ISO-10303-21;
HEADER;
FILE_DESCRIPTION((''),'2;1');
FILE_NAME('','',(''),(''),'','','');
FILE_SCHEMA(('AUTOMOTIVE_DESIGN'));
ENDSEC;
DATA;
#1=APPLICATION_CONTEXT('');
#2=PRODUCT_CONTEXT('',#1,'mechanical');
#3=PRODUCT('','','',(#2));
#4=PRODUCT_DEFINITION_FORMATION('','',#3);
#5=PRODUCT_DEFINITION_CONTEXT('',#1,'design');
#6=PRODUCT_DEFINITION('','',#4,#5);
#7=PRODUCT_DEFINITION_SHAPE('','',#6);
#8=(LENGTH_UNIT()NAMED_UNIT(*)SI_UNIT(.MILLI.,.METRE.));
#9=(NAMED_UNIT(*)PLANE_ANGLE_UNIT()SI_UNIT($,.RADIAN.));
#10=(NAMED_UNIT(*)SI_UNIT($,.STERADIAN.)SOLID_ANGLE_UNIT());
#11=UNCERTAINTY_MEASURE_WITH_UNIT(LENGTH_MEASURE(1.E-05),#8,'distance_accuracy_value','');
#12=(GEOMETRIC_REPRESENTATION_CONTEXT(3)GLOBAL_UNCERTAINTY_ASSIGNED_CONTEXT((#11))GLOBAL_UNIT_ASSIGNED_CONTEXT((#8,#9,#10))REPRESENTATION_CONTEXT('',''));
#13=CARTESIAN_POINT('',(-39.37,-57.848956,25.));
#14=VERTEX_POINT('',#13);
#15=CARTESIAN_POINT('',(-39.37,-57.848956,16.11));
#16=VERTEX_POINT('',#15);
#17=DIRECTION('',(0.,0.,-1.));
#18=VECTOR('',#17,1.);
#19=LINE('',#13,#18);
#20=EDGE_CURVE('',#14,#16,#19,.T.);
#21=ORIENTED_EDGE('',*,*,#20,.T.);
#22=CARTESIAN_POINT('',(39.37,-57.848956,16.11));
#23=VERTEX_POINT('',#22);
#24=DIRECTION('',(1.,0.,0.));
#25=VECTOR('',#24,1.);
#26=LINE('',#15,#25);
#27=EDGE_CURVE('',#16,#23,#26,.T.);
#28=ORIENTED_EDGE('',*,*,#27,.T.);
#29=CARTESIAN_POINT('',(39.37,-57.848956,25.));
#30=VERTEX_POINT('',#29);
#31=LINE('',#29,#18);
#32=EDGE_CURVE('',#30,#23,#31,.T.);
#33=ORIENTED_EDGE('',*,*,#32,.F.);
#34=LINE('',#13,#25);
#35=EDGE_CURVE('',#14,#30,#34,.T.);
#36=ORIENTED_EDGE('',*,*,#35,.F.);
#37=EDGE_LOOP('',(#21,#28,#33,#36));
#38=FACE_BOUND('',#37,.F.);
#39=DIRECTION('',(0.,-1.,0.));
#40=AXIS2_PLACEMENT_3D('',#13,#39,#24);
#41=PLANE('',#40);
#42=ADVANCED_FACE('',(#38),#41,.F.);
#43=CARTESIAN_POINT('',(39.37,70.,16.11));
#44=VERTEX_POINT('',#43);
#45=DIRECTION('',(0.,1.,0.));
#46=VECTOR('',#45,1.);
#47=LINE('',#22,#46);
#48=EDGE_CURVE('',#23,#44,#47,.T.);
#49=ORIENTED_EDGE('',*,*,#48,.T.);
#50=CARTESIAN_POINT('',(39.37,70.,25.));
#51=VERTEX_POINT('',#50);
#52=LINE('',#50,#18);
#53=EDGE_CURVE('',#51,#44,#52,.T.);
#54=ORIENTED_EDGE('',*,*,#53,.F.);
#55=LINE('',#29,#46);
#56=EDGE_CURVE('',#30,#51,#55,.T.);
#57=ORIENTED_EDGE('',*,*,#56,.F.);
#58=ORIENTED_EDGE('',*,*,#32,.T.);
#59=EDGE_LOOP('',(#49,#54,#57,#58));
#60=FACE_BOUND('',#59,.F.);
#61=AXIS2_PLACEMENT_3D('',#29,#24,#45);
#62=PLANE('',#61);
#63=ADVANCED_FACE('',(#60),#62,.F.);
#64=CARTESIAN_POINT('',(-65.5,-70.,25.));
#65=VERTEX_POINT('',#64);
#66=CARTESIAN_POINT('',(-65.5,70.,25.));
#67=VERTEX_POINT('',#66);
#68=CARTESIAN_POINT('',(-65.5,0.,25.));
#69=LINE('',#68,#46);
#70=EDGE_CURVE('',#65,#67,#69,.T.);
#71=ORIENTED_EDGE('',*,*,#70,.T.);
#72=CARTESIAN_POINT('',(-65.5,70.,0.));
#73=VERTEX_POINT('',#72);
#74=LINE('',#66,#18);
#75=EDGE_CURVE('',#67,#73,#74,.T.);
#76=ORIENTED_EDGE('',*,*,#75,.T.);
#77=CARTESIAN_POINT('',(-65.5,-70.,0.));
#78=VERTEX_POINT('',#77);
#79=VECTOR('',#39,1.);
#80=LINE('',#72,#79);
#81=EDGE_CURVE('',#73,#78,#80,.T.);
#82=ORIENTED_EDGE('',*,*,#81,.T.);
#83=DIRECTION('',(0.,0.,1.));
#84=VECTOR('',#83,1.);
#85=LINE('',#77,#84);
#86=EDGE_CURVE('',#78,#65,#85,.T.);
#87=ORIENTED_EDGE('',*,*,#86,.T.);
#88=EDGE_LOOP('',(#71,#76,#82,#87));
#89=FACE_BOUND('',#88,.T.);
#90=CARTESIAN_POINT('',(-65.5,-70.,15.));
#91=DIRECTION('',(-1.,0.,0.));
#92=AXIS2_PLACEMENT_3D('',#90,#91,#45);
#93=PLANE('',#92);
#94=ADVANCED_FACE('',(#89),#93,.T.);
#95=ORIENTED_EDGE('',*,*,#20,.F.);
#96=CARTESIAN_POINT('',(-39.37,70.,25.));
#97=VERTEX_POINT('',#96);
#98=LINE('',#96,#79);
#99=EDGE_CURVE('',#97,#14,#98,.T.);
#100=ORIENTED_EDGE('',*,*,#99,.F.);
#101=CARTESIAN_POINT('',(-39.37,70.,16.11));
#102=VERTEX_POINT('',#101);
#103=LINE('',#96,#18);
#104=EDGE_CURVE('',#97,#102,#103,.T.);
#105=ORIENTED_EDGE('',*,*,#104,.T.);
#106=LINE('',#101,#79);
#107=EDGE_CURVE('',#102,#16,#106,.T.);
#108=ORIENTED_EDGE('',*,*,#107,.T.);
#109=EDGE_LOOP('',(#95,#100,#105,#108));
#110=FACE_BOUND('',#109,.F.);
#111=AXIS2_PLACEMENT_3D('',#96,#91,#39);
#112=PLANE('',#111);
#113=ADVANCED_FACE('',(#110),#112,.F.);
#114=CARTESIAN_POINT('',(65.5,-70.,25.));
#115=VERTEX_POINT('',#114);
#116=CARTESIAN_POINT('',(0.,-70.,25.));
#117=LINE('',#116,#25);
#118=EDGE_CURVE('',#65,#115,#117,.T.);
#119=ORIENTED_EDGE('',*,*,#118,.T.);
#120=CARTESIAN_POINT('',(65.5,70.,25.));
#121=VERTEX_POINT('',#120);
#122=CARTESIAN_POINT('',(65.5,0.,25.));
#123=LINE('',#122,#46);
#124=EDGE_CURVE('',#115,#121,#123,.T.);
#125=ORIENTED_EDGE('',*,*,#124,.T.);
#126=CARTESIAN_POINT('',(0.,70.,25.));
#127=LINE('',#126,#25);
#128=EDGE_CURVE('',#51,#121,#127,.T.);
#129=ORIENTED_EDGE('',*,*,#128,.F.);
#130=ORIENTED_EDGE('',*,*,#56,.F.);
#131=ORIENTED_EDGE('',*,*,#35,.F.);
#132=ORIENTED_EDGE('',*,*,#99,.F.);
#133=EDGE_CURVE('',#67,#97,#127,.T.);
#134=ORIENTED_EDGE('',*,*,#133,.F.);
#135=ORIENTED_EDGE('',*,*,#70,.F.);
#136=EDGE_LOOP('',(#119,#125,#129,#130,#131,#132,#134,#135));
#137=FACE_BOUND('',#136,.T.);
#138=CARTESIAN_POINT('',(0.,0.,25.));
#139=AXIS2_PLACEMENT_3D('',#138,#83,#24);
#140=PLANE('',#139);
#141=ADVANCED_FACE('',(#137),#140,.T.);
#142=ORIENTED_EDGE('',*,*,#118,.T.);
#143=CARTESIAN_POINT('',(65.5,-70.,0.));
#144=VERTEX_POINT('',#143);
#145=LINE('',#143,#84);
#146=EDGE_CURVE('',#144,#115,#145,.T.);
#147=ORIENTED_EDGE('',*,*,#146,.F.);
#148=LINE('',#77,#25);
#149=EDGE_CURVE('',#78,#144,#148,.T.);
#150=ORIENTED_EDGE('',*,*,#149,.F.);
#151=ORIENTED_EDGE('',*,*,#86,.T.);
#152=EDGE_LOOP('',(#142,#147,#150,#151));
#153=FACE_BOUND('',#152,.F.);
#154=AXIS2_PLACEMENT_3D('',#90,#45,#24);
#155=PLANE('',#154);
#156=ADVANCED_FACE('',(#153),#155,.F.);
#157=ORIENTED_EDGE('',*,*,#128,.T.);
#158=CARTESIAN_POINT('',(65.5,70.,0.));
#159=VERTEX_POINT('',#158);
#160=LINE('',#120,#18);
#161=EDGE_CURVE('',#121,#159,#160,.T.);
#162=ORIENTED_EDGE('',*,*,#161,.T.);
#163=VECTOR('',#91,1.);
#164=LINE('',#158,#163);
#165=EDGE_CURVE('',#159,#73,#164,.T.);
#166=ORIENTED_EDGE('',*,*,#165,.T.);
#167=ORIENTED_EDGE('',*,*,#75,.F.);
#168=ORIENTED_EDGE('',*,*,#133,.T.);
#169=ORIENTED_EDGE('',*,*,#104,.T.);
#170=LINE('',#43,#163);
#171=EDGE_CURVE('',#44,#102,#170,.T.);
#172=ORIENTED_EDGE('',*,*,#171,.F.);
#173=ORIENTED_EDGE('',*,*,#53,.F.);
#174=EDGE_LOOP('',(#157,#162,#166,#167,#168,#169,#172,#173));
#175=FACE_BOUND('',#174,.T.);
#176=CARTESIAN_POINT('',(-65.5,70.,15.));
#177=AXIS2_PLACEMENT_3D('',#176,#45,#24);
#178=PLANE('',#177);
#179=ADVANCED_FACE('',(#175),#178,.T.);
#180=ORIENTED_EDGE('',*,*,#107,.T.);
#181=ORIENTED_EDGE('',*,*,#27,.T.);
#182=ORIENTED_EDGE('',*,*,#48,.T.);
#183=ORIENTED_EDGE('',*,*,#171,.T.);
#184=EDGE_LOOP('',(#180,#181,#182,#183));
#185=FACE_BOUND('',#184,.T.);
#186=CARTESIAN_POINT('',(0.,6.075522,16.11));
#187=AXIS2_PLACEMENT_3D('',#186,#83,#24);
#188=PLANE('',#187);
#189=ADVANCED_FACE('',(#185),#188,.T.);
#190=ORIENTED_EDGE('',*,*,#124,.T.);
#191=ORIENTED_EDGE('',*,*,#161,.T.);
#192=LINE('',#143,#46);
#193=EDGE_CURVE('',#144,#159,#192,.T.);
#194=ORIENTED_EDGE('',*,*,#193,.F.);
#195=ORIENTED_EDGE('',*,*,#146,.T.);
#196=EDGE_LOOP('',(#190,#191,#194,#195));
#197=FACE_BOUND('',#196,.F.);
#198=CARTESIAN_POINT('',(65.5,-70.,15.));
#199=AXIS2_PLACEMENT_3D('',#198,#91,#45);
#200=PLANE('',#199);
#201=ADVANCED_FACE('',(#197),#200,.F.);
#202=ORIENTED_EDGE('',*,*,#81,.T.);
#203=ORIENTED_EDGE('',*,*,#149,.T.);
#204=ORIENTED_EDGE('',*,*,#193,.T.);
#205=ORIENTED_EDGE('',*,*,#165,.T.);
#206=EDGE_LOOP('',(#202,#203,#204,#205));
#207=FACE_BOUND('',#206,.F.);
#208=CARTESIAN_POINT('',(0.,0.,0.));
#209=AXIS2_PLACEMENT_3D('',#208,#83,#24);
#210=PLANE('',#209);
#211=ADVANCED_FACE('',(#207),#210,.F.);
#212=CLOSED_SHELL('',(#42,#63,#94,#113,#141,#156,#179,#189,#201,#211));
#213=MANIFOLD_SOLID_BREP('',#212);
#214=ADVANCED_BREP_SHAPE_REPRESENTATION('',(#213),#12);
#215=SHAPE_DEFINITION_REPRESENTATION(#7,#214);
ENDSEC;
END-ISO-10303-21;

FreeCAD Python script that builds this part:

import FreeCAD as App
import Part
import Sketcher
from FreeCAD import Vector

doc = App.newDocument("Part")
params = doc.addObject("Spreadsheet::Sheet", "Params")
for row, (alias, value) in enumerate([
    ("sketch1_width", "131 mm"),
    ("sketch1_height", "140 mm"),
    ("pad1_length", "15 mm"),
    ("sketch2_width", "131 mm"),
    ("sketch2_height", "140 mm"),
    ("pad2_length", "10 mm"),
    ("sketch3_width", "78.74 mm"),
    ("pocket1_length", "8.89 mm"),
], start=1):
    params.set(f"A{row}", alias)
    params.set(f"B{row}", "=" + value)
    params.setAlias(f"B{row}", alias)

body = doc.addObject("PartDesign::Body", "Body")

# Sketch on XY plane
sketch1 = body.newObject("Sketcher::SketchObject", "Sketch")
sketch1.AttachmentSupport = (doc.getObject("XY_Plane"), [""])
sketch1.MapMode = "FlatFace"
sketch1.addGeometry(Part.LineSegment(Vector(-66, 70, 0), Vector(-66, -70, 0)), False)
sketch1.addGeometry(Part.LineSegment(Vector(-66, -70, 0), Vector(66, -70, 0)), False)
sketch1.addGeometry(Part.LineSegment(Vector(66, -70, 0), Vector(66, 70, 0)), False)
sketch1.addGeometry(Part.LineSegment(Vector(66, 70, 0), Vector(-66, 70, 0)), False)
sketch1.addConstraint(Sketcher.Constraint("Coincident", 0, 2, 1, 1))
sketch1.addConstraint(Sketcher.Constraint("Coincident", 1, 2, 2, 1))
sketch1.addConstraint(Sketcher.Constraint("Coincident", 2, 2, 3, 1))
sketch1.addConstraint(Sketcher.Constraint("Coincident", 3, 2, 0, 1))
sketch1.addConstraint(Sketcher.Constraint("Vertical", 0))
sketch1.addConstraint(Sketcher.Constraint("Horizontal", 1))
sketch1.addConstraint(Sketcher.Constraint("Vertical", 2))
sketch1.addConstraint(Sketcher.Constraint("Horizontal", 3))
sketch1.addConstraint(Sketcher.Constraint("Symmetric", 0, 2, 2, 2, -1, 1))
sketch1.addConstraint(Sketcher.Constraint("DistanceX", 1, 1, 1, 2, 131.0))
sketch1.addConstraint(Sketcher.Constraint("DistanceY", 0, 2, 0, 1, 140.0))
sketch1.setExpression("Constraints[9]", "Params.sketch1_width")
sketch1.setExpression("Constraints[10]", "Params.sketch1_height")
pad1 = body.newObject("PartDesign::Pad", "Pad")
pad1.Profile = sketch1
pad1.setExpression("Length", "Params.pad1_length")

# Sketch on XY plane
sketch2 = body.newObject("Sketcher::SketchObject", "Sketch001")
sketch2.AttachmentSupport = (doc.getObject("XY_Plane"), [""])
sketch2.MapMode = "FlatFace"
sketch2.AttachmentOffset = App.Placement(Vector(0, 0, 15), App.Rotation())
sketch2.addGeometry(Part.LineSegment(Vector(-66, 70, 0), Vector(-66, -70, 0)), False)
sketch2.addGeometry(Part.LineSegment(Vector(-66, -70, 0), Vector(66, -70, 0)), False)
sketch2.addGeometry(Part.LineSegment(Vector(66, -70, 0), Vector(66, 70, 0)), False)
sketch2.addGeometry(Part.LineSegment(Vector(66, 70, 0), Vector(-66, 70, 0)), False)
sketch2.addConstraint(Sketcher.Constraint("Coincident", 0, 2, 1, 1))
sketch2.addConstraint(Sketcher.Constraint("Coincident", 1, 2, 2, 1))
sketch2.addConstraint(Sketcher.Constraint("Coincident", 2, 2, 3, 1))
sketch2.addConstraint(Sketcher.Constraint("Coincident", 3, 2, 0, 1))
sketch2.addConstraint(Sketcher.Constraint("Vertical", 0))
sketch2.addConstraint(Sketcher.Constraint("Horizontal", 1))
sketch2.addConstraint(Sketcher.Constraint("Vertical", 2))
sketch2.addConstraint(Sketcher.Constraint("Horizontal", 3))
sketch2.addConstraint(Sketcher.Constraint("Symmetric", 0, 2, 2, 2, -1, 1))
sketch2.addConstraint(Sketcher.Constraint("DistanceX", 1, 1, 1, 2, 131.0))
sketch2.addConstraint(Sketcher.Constraint("DistanceY", 0, 2, 0, 1, 140.0))
sketch2.setExpression("Constraints[9]", "Params.sketch2_width")
sketch2.setExpression("Constraints[10]", "Params.sketch2_height")
pad2 = body.newObject("PartDesign::Pad", "Pad001")
pad2.Profile = sketch2
pad2.setExpression("Length", "Params.pad2_length")

# Sketch on XY plane
sketch3 = body.newObject("Sketcher::SketchObject", "Sketch002")
sketch3.AttachmentSupport = (doc.getObject("XY_Plane"), [""])
sketch3.MapMode = "FlatFace"
sketch3.AttachmentOffset = App.Placement(Vector(0, 0, 25), App.Rotation())
sketch3.addGeometry(Part.LineSegment(Vector(39, 70, 0), Vector(-39, 70, 0)), False)
sketch3.addGeometry(Part.LineSegment(Vector(-39, 70, 0), Vector(-39, -58, 0)), False)
sketch3.addGeometry(Part.LineSegment(Vector(-39, -58, 0), Vector(39, -58, 0)), False)
sketch3.addGeometry(Part.LineSegment(Vector(39, -58, 0), Vector(39, 70, 0)), False)
sketch3.addConstraint(Sketcher.Constraint("Coincident", 0, 2, 1, 1))
sketch3.addConstraint(Sketcher.Constraint("Coincident", 1, 2, 2, 1))
sketch3.addConstraint(Sketcher.Constraint("Coincident", 2, 2, 3, 1))
sketch3.addConstraint(Sketcher.Constraint("Coincident", 3, 2, 0, 1))
sketch3.addConstraint(Sketcher.Constraint("Horizontal", 0))
sketch3.addConstraint(Sketcher.Constraint("Vertical", 1))
sketch3.addConstraint(Sketcher.Constraint("Horizontal", 2))
sketch3.addConstraint(Sketcher.Constraint("Vertical", 3))
sketch3.addConstraint(Sketcher.Constraint("DistanceY", -1, 1, 0, 2, 70.0))
sketch3.addConstraint(Sketcher.Constraint("DistanceX", 0, 2, 0, 1, 78.74))
sketch3.addConstraint(Sketcher.Constraint("DistanceX", 0, 2, -1, 1, 39.37))
sketch3.addConstraint(Sketcher.Constraint("DistanceY", 1, 2, 1, 1, 127.848956))
sketch3.setExpression("Constraints[9]", "Params.sketch3_width")
pocket1 = body.newObject("PartDesign::Pocket", "Pocket")
pocket1.Profile = sketch3
pocket1.setExpression("Length", "Params.pocket1_length")

doc.recompute()
